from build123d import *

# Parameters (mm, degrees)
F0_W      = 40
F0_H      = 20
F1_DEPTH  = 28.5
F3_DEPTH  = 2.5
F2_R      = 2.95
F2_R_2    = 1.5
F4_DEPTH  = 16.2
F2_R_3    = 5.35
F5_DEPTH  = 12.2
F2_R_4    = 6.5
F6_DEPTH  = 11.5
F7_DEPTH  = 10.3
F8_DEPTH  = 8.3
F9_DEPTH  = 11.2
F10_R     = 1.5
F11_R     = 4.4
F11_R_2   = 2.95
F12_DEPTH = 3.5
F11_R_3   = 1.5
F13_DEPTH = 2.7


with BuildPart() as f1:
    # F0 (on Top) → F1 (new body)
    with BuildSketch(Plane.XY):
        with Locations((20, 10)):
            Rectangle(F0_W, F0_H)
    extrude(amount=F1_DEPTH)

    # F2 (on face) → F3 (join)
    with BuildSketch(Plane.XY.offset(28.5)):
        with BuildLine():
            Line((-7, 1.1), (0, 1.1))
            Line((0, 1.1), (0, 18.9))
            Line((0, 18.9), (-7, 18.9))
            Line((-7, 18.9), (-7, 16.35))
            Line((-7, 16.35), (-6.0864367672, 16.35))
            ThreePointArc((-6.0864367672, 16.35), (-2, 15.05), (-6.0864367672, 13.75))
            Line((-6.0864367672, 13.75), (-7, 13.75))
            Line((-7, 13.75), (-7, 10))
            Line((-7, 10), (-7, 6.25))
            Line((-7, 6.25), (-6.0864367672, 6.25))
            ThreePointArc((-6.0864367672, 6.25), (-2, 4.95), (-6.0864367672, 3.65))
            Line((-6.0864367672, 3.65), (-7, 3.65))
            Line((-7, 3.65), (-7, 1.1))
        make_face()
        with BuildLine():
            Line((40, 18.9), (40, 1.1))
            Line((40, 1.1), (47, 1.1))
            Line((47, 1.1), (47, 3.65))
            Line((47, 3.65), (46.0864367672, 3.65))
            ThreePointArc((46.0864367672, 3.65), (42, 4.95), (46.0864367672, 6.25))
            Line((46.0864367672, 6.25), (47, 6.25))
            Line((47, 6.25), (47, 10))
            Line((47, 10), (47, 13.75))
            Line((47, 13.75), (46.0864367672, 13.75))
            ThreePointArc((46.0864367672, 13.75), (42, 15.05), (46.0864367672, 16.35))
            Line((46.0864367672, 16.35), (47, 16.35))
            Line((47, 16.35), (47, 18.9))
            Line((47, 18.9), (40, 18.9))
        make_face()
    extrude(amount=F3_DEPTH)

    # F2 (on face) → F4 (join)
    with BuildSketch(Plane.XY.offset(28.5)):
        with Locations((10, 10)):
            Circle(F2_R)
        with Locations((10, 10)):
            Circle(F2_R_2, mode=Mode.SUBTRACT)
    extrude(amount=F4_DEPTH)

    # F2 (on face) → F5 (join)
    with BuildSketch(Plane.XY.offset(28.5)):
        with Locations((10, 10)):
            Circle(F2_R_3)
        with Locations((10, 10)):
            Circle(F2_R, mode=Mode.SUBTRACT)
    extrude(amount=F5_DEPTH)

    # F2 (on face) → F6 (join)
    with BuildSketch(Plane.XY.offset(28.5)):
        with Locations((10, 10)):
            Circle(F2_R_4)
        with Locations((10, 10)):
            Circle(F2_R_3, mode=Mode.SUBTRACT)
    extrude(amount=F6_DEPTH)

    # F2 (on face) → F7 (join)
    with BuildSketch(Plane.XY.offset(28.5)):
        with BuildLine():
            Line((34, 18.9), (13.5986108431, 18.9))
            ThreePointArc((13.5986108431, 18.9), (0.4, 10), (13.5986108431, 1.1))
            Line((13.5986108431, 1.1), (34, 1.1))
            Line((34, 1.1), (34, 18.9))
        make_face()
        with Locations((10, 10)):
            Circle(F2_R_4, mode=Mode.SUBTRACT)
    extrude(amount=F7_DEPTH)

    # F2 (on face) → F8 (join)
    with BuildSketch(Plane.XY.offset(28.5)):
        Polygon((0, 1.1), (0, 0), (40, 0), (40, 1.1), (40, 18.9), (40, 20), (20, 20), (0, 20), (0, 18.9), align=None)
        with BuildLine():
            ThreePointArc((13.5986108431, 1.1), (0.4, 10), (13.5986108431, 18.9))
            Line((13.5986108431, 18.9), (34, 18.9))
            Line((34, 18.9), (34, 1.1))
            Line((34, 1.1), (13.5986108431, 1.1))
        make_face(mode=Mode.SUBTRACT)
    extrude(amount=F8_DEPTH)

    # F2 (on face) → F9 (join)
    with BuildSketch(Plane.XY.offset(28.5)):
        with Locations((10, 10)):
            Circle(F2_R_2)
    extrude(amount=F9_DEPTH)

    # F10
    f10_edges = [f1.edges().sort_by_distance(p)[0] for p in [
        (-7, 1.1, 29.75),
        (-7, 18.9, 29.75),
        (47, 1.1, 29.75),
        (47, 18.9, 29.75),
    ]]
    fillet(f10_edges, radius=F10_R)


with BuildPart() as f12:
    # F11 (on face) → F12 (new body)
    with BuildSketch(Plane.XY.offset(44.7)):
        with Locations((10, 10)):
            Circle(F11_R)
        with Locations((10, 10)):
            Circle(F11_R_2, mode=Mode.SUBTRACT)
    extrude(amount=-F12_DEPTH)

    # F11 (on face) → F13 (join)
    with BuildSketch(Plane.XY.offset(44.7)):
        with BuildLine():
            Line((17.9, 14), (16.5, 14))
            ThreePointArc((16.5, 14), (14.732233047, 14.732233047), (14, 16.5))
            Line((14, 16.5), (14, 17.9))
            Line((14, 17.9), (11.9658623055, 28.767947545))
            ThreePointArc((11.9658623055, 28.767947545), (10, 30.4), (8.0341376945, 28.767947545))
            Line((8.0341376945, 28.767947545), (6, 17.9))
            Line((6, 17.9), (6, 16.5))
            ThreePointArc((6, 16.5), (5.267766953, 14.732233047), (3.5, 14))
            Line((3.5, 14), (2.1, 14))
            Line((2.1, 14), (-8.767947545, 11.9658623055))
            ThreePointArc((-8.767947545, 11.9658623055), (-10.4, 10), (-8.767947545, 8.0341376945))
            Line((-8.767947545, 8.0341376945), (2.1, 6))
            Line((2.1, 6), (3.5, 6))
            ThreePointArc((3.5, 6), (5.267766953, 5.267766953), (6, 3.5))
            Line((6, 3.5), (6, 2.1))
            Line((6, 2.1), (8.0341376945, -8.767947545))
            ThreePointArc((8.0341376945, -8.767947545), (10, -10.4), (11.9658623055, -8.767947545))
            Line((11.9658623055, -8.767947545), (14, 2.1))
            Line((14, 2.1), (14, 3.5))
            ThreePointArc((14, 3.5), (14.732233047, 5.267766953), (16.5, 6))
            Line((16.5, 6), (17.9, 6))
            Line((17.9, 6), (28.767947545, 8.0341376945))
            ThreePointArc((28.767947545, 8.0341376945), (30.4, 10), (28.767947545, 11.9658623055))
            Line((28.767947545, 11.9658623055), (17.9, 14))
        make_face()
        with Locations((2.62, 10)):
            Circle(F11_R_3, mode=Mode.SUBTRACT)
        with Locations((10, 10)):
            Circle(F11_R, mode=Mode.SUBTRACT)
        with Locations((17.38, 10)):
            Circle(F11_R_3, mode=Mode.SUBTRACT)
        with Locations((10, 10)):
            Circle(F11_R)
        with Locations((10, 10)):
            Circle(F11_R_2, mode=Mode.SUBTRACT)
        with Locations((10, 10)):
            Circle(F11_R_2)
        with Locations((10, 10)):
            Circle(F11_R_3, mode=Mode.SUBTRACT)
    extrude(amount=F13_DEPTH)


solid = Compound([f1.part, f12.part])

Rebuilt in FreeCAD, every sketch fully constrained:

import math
import FreeCAD as App
import Part
import Sketcher
from FreeCAD import Vector
Q = App.Units.Quantity


def edges_at(feature, points):
    """Names of the edges that pass closest to the given points."""
    edges = feature.Shape.Edges
    near = lambda p: min(range(len(edges)), key=lambda i: edges[i].distToShape(Part.Vertex(*p))[0])
    return sorted({f"Edge{near(p) + 1}" for p in points})


def add_polygon(sketch, points):
    """Adds a closed chain of lines whose ends are joined by coincident constraints."""
    first, n = sketch.GeometryCount, len(points)
    for a, b in zip(points, points[1:] + points[:1]):
        sketch.addGeometry(Part.LineSegment(App.Vector(*a, 0), App.Vector(*b, 0)), False)
    for i in range(n):
        sketch.addConstraint(Sketcher.Constraint("Coincident", first + i, 2, first + (i + 1) % n, 1))

doc = App.newDocument("Part")
body = doc.addObject("PartDesign::Body", "Body")
body.AllowCompound = True

# Sketch on XY plane
sketch1 = body.newObject("Sketcher::SketchObject", "Sketch")
sketch1.AttachmentSupport = (doc.getObject("XY_Plane"), [""])
sketch1.MapMode = "FlatFace"
add_polygon(sketch1, [(0, 20), (0, 0), (40, 0), (40, 20)])  # lines 0-3
sketch1.addConstraint(Sketcher.Constraint("Vertical", 0))
sketch1.addConstraint(Sketcher.Constraint("Horizontal", 1))
sketch1.addConstraint(Sketcher.Constraint("Vertical", 2))
sketch1.addConstraint(Sketcher.Constraint("Horizontal", 3))
sketch1.addConstraint(Sketcher.Constraint("Coincident", 0, 2, -1, 1))
sketch1.addConstraint(Sketcher.Constraint("DistanceX", 1, 1, 1, 2, Q("40 mm")))
sketch1.addConstraint(Sketcher.Constraint("DistanceY", 0, 2, 0, 1, Q("20 mm")))
pad1 = body.newObject("PartDesign::Pad", "Pad")
pad1.Profile = sketch1
pad1.Length = 28.5

# Sketch on XY plane
sketch2 = body.newObject("Sketcher::SketchObject", "Sketch001")
sketch2.AttachmentSupport = (doc.getObject("XY_Plane"), [""])
sketch2.MapMode = "FlatFace"
sketch2.AttachmentOffset = App.Placement(Vector(0, 0, 28.5), App.Rotation())
sketch2.addGeometry(Part.LineSegment(Vector(-7, 1.1, 0), Vector(0, 1.1, 0)), False)
sketch2.addGeometry(Part.LineSegment(Vector(0, 1.1, 0), Vector(0, 18.9, 0)), False)
sketch2.addGeometry(Part.LineSegment(Vector(0, 18.9, 0), Vector(-7, 18.9, 0)), False)
sketch2.addGeometry(Part.LineSegment(Vector(-7, 18.9, 0), Vector(-7, 16.35, 0)), False)
sketch2.addGeometry(Part.LineSegment(Vector(-7, 16.35, 0), Vector(-6.086437, 16.35, 0)), False)
sketch2.addGeometry(Part.ArcOfCircle(Part.Circle(Vector(-4.25, 15.05, 0), Vector(0, 0, 1), 2.25), math.radians(-144.705605), math.radians(144.705605)), False)
sketch2.addGeometry(Part.LineSegment(Vector(-6.086437, 13.75, 0), Vector(-7, 13.75, 0)), False)
sketch2.addGeometry(Part.LineSegment(Vector(-7, 13.75, 0), Vector(-7, 6.25, 0)), False)
sketch2.addGeometry(Part.LineSegment(Vector(-7, 6.25, 0), Vector(-6.086437, 6.25, 0)), False)
sketch2.addGeometry(Part.ArcOfCircle(Part.Circle(Vector(-4.25, 4.95, 0), Vector(0, 0, 1), 2.25), math.radians(-144.705605), math.radians(144.705605)), False)
sketch2.addGeometry(Part.LineSegment(Vector(-6.086437, 3.65, 0), Vector(-7, 3.65, 0)), False)
sketch2.addGeometry(Part.LineSegment(Vector(-7, 3.65, 0), Vector(-7, 1.1, 0)), False)
sketch2.addGeometry(Part.LineSegment(Vector(40, 18.9, 0), Vector(40, 1.1, 0)), False)
sketch2.addGeometry(Part.LineSegment(Vector(40, 1.1, 0), Vector(47, 1.1, 0)), False)
sketch2.addGeometry(Part.LineSegment(Vector(47, 1.1, 0), Vector(47, 3.65, 0)), False)
sketch2.addGeometry(Part.LineSegment(Vector(47, 3.65, 0), Vector(46.086437, 3.65, 0)), False)
sketch2.addGeometry(Part.ArcOfCircle(Part.Circle(Vector(44.25, 4.95, 0), Vector(0, 0, 1), 2.25), math.radians(35.294395), math.radians(324.705605)), False)
sketch2.addGeometry(Part.LineSegment(Vector(46.086437, 6.25, 0), Vector(47, 6.25, 0)), False)
sketch2.addGeometry(Part.LineSegment(Vector(47, 6.25, 0), Vector(47, 13.75, 0)), False)
sketch2.addGeometry(Part.LineSegment(Vector(47, 13.75, 0), Vector(46.086437, 13.75, 0)), False)
sketch2.addGeometry(Part.ArcOfCircle(Part.Circle(Vector(44.25, 15.05, 0), Vector(0, 0, 1), 2.25), math.radians(35.294395), math.radians(324.705605)), False)
sketch2.addGeometry(Part.LineSegment(Vector(46.086437, 16.35, 0), Vector(47, 16.35, 0)), False)
sketch2.addGeometry(Part.LineSegment(Vector(47, 16.35, 0), Vector(47, 18.9, 0)), False)
sketch2.addGeometry(Part.LineSegment(Vector(47, 18.9, 0), Vector(40, 18.9, 0)), False)
sketch2.addConstraint(Sketcher.Constraint("Coincident", 0, 2, 1, 1))
sketch2.addConstraint(Sketcher.Constraint("Coincident", 1, 2, 2, 1))
sketch2.addConstraint(Sketcher.Constraint("Coincident", 2, 2, 3, 1))
sketch2.addConstraint(Sketcher.Constraint("Coincident", 3, 2, 4, 1))
sketch2.addConstraint(Sketcher.Constraint("Coincident", 4, 2, 5, 2))
sketch2.addConstraint(Sketcher.Constraint("Coincident", 5, 1, 6, 1))
sketch2.addConstraint(Sketcher.Constraint("Coincident", 6, 2, 7, 1))
sketch2.addConstraint(Sketcher.Constraint("Coincident", 7, 2, 8, 1))
sketch2.addConstraint(Sketcher.Constraint("Coincident", 8, 2, 9, 2))
sketch2.addConstraint(Sketcher.Constraint("Coincident", 9, 1, 10, 1))
sketch2.addConstraint(Sketcher.Constraint("Coincident", 10, 2, 11, 1))
sketch2.addConstraint(Sketcher.Constraint("Coincident", 11, 2, 0, 1))
sketch2.addConstraint(Sketcher.Constraint("Coincident", 12, 2, 13, 1))
sketch2.addConstraint(Sketcher.Constraint("Coincident", 13, 2, 14, 1))
sketch2.addConstraint(Sketcher.Constraint("Coincident", 14, 2, 15, 1))
sketch2.addConstraint(Sketcher.Constraint("Coincident", 15, 2, 16, 2))
sketch2.addConstraint(Sketcher.Constraint("Coincident", 16, 1, 17, 1))
sketch2.addConstraint(Sketcher.Constraint("Coincident", 17, 2, 18, 1))
sketch2.addConstraint(Sketcher.Constraint("Coincident", 18, 2, 19, 1))
sketch2.addConstraint(Sketcher.Constraint("Coincident", 19, 2, 20, 2))
sketch2.addConstraint(Sketcher.Constraint("Coincident", 20, 1, 21, 1))
sketch2.addConstraint(Sketcher.Constraint("Coincident", 21, 2, 22, 1))
sketch2.addConstraint(Sketcher.Constraint("Coincident", 22, 2, 23, 1))
sketch2.addConstraint(Sketcher.Constraint("Coincident", 23, 2, 12, 1))
sketch2.addConstraint(Sketcher.Constraint("Horizontal", 0))
sketch2.addConstraint(Sketcher.Constraint("Vertical", 1))
sketch2.addConstraint(Sketcher.Constraint("Horizontal", 2))
sketch2.addConstraint(Sketcher.Constraint("Vertical", 3))
sketch2.addConstraint(Sketcher.Constraint("Horizontal", 4))
sketch2.addConstraint(Sketcher.Constraint("Horizontal", 6))
sketch2.addConstraint(Sketcher.Constraint("Vertical", 7))
sketch2.addConstraint(Sketcher.Constraint("Horizontal", 8))
sketch2.addConstraint(Sketcher.Constraint("Horizontal", 10))
sketch2.addConstraint(Sketcher.Constraint("Vertical", 11))
sketch2.addConstraint(Sketcher.Constraint("Vertical", 12))
sketch2.addConstraint(Sketcher.Constraint("Horizontal", 13))
sketch2.addConstraint(Sketcher.Constraint("Vertical", 14))
sketch2.addConstraint(Sketcher.Constraint("Horizontal", 15))
sketch2.addConstraint(Sketcher.Constraint("Horizontal", 17))
sketch2.addConstraint(Sketcher.Constraint("Vertical", 18))
sketch2.addConstraint(Sketcher.Constraint("Horizontal", 19))
sketch2.addConstraint(Sketcher.Constraint("Horizontal", 21))
sketch2.addConstraint(Sketcher.Constraint("Vertical", 22))
sketch2.addConstraint(Sketcher.Constraint("Horizontal", 23))
sketch2.addConstraint(Sketcher.Constraint("Equal", 5, 9))
sketch2.addConstraint(Sketcher.Constraint("Equal", 9, 16))
sketch2.addConstraint(Sketcher.Constraint("Equal", 16, 20))
sketch2.addConstraint(Sketcher.Constraint("PointOnObject", 0, 2, -2))
sketch2.addConstraint(Sketcher.Constraint("Horizontal", 9, 3, 16, 3))
sketch2.addConstraint(Sketcher.Constraint("Horizontal", 5, 3, 20, 3))
sketch2.addConstraint(Sketcher.Constraint("Horizontal", 11, 2, 12, 2))
sketch2.addConstraint(Sketcher.Constraint("Horizontal", 10, 2, 14, 2))
sketch2.addConstraint(Sketcher.Constraint("Horizontal", 8, 2, 16, 1))
sketch2.addConstraint(Sketcher.Constraint("Horizontal", 6, 2, 18, 2))
sketch2.addConstraint(Sketcher.Constraint("Horizontal", 4, 2, 20, 1))
sketch2.addConstraint(Sketcher.Constraint("Horizontal", 2, 2, 22, 2))
sketch2.addConstraint(Sketcher.Constraint("Vertical", 5, 3, 9, 3))
sketch2.addConstraint(Sketcher.Constraint("Vertical", 16, 3, 20, 3))
sketch2.addConstraint(Sketcher.Constraint("Vertical", 4, 2, 5, 1))
sketch2.addConstraint(Sketcher.Constraint("Vertical", 3, 2, 6, 2))
sketch2.addConstraint(Sketcher.Constraint("Vertical", 5, 1, 8, 2))
sketch2.addConstraint(Sketcher.Constraint("Vertical", 8, 2, 9, 1))
sketch2.addConstraint(Sketcher.Constraint("Vertical", 7, 2, 10, 2))
sketch2.addConstraint(Sketcher.Constraint("Vertical", 14, 2, 17, 2))
sketch2.addConstraint(Sketcher.Constraint("Vertical", 18, 2, 21, 2))
sketch2.addConstraint(Sketcher.Constraint("Equal", 2, 13))
sketch2.addConstraint(Sketcher.Constraint("Equal", 10, 15))
sketch2.addConstraint(Sketcher.Constraint("Equal", 3, 11))
sketch2.addConstraint(Sketcher.Constraint("DistanceX", 0, 1, 0, 2, Q("7 mm")))
sketch2.addConstraint(Sketcher.Constraint("Radius", 5, Q("2.25 mm")))
sketch2.addConstraint(Sketcher.Constraint("DistanceY", 1, 1, 1, 2, Q("17.8 mm")))
sketch2.addConstraint(Sketcher.Constraint("DistanceY", 7, 2, 7, 1, Q("7.5 mm")))
sketch2.addConstraint(Sketcher.Constraint("DistanceX", -1, 1, 12, 2, Q("40 mm")))
sketch2.addConstraint(Sketcher.Constraint("DistanceY", 3, 2, 3, 1, Q("2.55 mm")))
sketch2.addConstraint(Sketcher.Constraint("DistanceY", -1, 1, 0, 2, Q("1.1 mm")))
sketch2.addConstraint(Sketcher.Constraint("DistanceX", 9, 3, 16, 3, Q("48.5 mm")))
pad2 = body.newObject("PartDesign::Pad", "Pad001")
pad2.Profile = sketch2
pad2.Length = 2.5

# Sketch on XY plane
sketch3 = body.newObject("Sketcher::SketchObject", "Sketch002")
sketch3.AttachmentSupport = (doc.getObject("XY_Plane"), [""])
sketch3.MapMode = "FlatFace"
sketch3.AttachmentOffset = App.Placement(Vector(0, 0, 28.5), App.Rotation())
sketch3.addGeometry(Part.Circle(Vector(10, 10, 0), Vector(0, 0, 1), 2.95), False)
sketch3.addGeometry(Part.Circle(Vector(10, 10, 0), Vector(0, 0, 1), 1.5), False)
sketch3.addConstraint(Sketcher.Constraint("Coincident", 1, 3, 0, 3))
sketch3.addConstraint(Sketcher.Constraint("Diameter", 1, Q("3 mm")))
sketch3.addConstraint(Sketcher.Constraint("Diameter", 0, Q("5.9 mm")))
sketch3.addConstraint(Sketcher.Constraint("DistanceX", -1, 1, 0, 3, Q("10 mm")))
sketch3.addConstraint(Sketcher.Constraint("DistanceY", -1, 1, 0, 3, Q("10 mm")))
pad3 = body.newObject("PartDesign::Pad", "Pad002")
pad3.Profile = sketch3
pad3.Length = 16.2

# Sketch on XY plane
sketch4 = body.newObject("Sketcher::SketchObject", "Sketch003")
sketch4.AttachmentSupport = (doc.getObject("XY_Plane"), [""])
sketch4.MapMode = "FlatFace"
sketch4.AttachmentOffset = App.Placement(Vector(0, 0, 28.5), App.Rotation())
sketch4.addGeometry(Part.Circle(Vector(10, 10, 0), Vector(0, 0, 1), 5.35), False)
sketch4.addGeometry(Part.Circle(Vector(10, 10, 0), Vector(0, 0, 1), 2.95), False)
sketch4.addConstraint(Sketcher.Constraint("Coincident", 1, 3, 0, 3))
sketch4.addConstraint(Sketcher.Constraint("Diameter", 0, Q("10.7 mm")))
sketch4.addConstraint(Sketcher.Constraint("Diameter", 1, Q("5.9 mm")))
sketch4.addConstraint(Sketcher.Constraint("DistanceX", -1, 1, 0, 3, Q("10 mm")))
sketch4.addConstraint(Sketcher.Constraint("DistanceY", -1, 1, 0, 3, Q("10 mm")))
pad4 = body.newObject("PartDesign::Pad", "Pad003")
pad4.Profile = sketch4
pad4.Length = 12.2

# Sketch on XY plane
sketch5 = body.newObject("Sketcher::SketchObject", "Sketch004")
sketch5.AttachmentSupport = (doc.getObject("XY_Plane"), [""])
sketch5.MapMode = "FlatFace"
sketch5.AttachmentOffset = App.Placement(Vector(0, 0, 28.5), App.Rotation())
sketch5.addGeometry(Part.Circle(Vector(10, 10, 0), Vector(0, 0, 1), 6.5), False)
sketch5.addGeometry(Part.Circle(Vector(10, 10, 0), Vector(0, 0, 1), 5.35), False)
sketch5.addConstraint(Sketcher.Constraint("Coincident", 1, 3, 0, 3))
sketch5.addConstraint(Sketcher.Constraint("Diameter", 0, Q("13 mm")))
sketch5.addConstraint(Sketcher.Constraint("Diameter", 1, Q("10.7 mm")))
sketch5.addConstraint(Sketcher.Constraint("DistanceX", -1, 1, 0, 3, Q("10 mm")))
sketch5.addConstraint(Sketcher.Constraint("DistanceY", -1, 1, 0, 3, Q("10 mm")))
pad5 = body.newObject("PartDesign::Pad", "Pad004")
pad5.Profile = sketch5
pad5.Length = 11.5

# Sketch on XY plane
sketch6 = body.newObject("Sketcher::SketchObject", "Sketch005")
sketch6.AttachmentSupport = (doc.getObject("XY_Plane"), [""])
sketch6.MapMode = "FlatFace"
sketch6.AttachmentOffset = App.Placement(Vector(0, 0, 28.5), App.Rotation())
sketch6.addGeometry(Part.LineSegment(Vector(34, 18.9, 0), Vector(13.598611, 18.9, 0)), False)
sketch6.addGeometry(Part.ArcOfCircle(Part.Circle(Vector(10, 10, 0), Vector(0, 0, 1), 9.6), math.radians(67.98463), math.radians(292.01537)), False)
sketch6.addGeometry(Part.LineSegment(Vector(13.598611, 1.1, 0), Vector(34, 1.1, 0)), False)
sketch6.addGeometry(Part.LineSegment(Vector(34, 1.1, 0), Vector(34, 18.9, 0)), False)
sketch6.addGeometry(Part.Circle(Vector(10, 10, 0), Vector(0, 0, 1), 6.5), False)
sketch6.addConstraint(Sketcher.Constraint("Coincident", 0, 2, 1, 1))
sketch6.addConstraint(Sketcher.Constraint("Coincident", 1, 2, 2, 1))
sketch6.addConstraint(Sketcher.Constraint("Coincident", 2, 2, 3, 1))
sketch6.addConstraint(Sketcher.Constraint("Coincident", 3, 2, 0, 1))
sketch6.addConstraint(Sketcher.Constraint("Horizontal", 0))
sketch6.addConstraint(Sketcher.Constraint("Horizontal", 2))
sketch6.addConstraint(Sketcher.Constraint("Vertical", 3))
sketch6.addConstraint(Sketcher.Constraint("Coincident", 4, 3, 1, 3))
sketch6.addConstraint(Sketcher.Constraint("Vertical", 0, 2, 1, 2))
sketch6.addConstraint(Sketcher.Constraint("Diameter", 4, Q("13 mm")))
sketch6.addConstraint(Sketcher.Constraint("Radius", 1, Q("9.6 mm")))
sketch6.addConstraint(Sketcher.Constraint("DistanceY", 3, 1, 3, 2, Q("17.8 mm")))
sketch6.addConstraint(Sketcher.Constraint("DistanceX", -1, 1, 1, 3, Q("10 mm")))
sketch6.addConstraint(Sketcher.Constraint("DistanceY", -1, 1, 1, 3, Q("10 mm")))
sketch6.addConstraint(Sketcher.Constraint("DistanceX", -1, 1, 2, 2, Q("34 mm")))
pad6 = body.newObject("PartDesign::Pad", "Pad005")
pad6.Profile = sketch6
pad6.Length = 10.3

# Sketch on XY plane
sketch7 = body.newObject("Sketcher::SketchObject", "Sketch006")
sketch7.AttachmentSupport = (doc.getObject("XY_Plane"), [""])
sketch7.MapMode = "FlatFace"
sketch7.AttachmentOffset = App.Placement(Vector(0, 0, 28.5), App.Rotation())
add_polygon(sketch7, [(0, 0), (40, 0), (40, 20), (0, 20)])  # lines 0-3
sketch7.addGeometry(Part.LineSegment(Vector(34, 1.1, 0), Vector(13.598611, 1.1, 0)), False)  # 4
sketch7.addGeometry(Part.ArcOfCircle(Part.Circle(Vector(10, 10, 0), Vector(0, 0, 1), 9.6), math.radians(67.98463), math.radians(292.01537)), False)  # 5
sketch7.addGeometry(Part.LineSegment(Vector(13.598611, 18.9, 0), Vector(34, 18.9, 0)), False)  # 6
sketch7.addGeometry(Part.LineSegment(Vector(34, 18.9, 0), Vector(34, 1.1, 0)), False)  # 7
sketch7.addConstraint(Sketcher.Constraint("Coincident", 4, 2, 5, 2))
sketch7.addConstraint(Sketcher.Constraint("Coincident", 5, 1, 6, 1))
sketch7.addConstraint(Sketcher.Constraint("Coincident", 6, 2, 7, 1))
sketch7.addConstraint(Sketcher.Constraint("Coincident", 7, 2, 4, 1))
sketch7.addConstraint(Sketcher.Constraint("Horizontal", 0))
sketch7.addConstraint(Sketcher.Constraint("Vertical", 1))
sketch7.addConstraint(Sketcher.Constraint("Horizontal", 2))
sketch7.addConstraint(Sketcher.Constraint("Vertical", 3))
sketch7.addConstraint(Sketcher.Constraint("Horizontal", 4))
sketch7.addConstraint(Sketcher.Constraint("Horizontal", 6))
sketch7.addConstraint(Sketcher.Constraint("Vertical", 7))
sketch7.addConstraint(Sketcher.Constraint("Coincident", 3, 2, -1, 1))
sketch7.addConstraint(Sketcher.Constraint("Vertical", 4, 2, 5, 1))
sketch7.addConstraint(Sketcher.Constraint("Radius", 5, Q("9.6 mm")))
sketch7.addConstraint(Sketcher.Constraint("DistanceX", 0, 1, 0, 2, Q("40 mm")))
sketch7.addConstraint(Sketcher.Constraint("DistanceY", 1, 1, 1, 2, Q("20 mm")))
sketch7.addConstraint(Sketcher.Constraint("DistanceY", 7, 2, 7, 1, Q("17.8 mm")))
sketch7.addConstraint(Sketcher.Constraint("DistanceX", -1, 1, 5, 3, Q("10 mm")))
sketch7.addConstraint(Sketcher.Constraint("DistanceY", -1, 1, 5, 3, Q("10 mm")))
sketch7.addConstraint(Sketcher.Constraint("DistanceX", -1, 1, 6, 2, Q("34 mm")))
pad7 = body.newObject("PartDesign::Pad", "Pad006")
pad7.Profile = sketch7
pad7.Length = 8.3

# Sketch on XY plane
sketch8 = body.newObject("Sketcher::SketchObject", "Sketch007")
sketch8.AttachmentSupport = (doc.getObject("XY_Plane"), [""])
sketch8.MapMode = "FlatFace"
sketch8.AttachmentOffset = App.Placement(Vector(0, 0, 28.5), App.Rotation())
sketch8.addGeometry(Part.Circle(Vector(10, 10, 0), Vector(0, 0, 1), 1.5), False)
sketch8.addConstraint(Sketcher.Constraint("Diameter", 0, Q("3 mm")))
sketch8.addConstraint(Sketcher.Constraint("DistanceX", -1, 1, 0, 3, Q("10 mm")))
sketch8.addConstraint(Sketcher.Constraint("DistanceY", -1, 1, 0, 3, Q("10 mm")))
pad8 = body.newObject("PartDesign::Pad", "Pad007")
pad8.Profile = sketch8
pad8.Length = 11.2
doc.recompute()

fillet = body.newObject("PartDesign::Fillet", "Fillet")
fillet.Base = (pad8, edges_at(pad8, [
    (-7, 1.1, 29.75),
    (-7, 18.9, 29.75),
    (47, 1.1, 29.75),
    (47, 18.9, 29.75),
]))
fillet.Radius = 1.5
body2 = doc.addObject("PartDesign::Body", "Body001")

# Sketch on XY plane
sketch9 = body2.newObject("Sketcher::SketchObject", "Sketch008")
sketch9.AttachmentSupport = (doc.getObject("XY_Plane001"), [""])
sketch9.MapMode = "FlatFace"
sketch9.AttachmentOffset = App.Placement(Vector(0, 0, 44.7), App.Rotation())
sketch9.addGeometry(Part.Circle(Vector(10, 10, 0), Vector(0, 0, 1), 4.4), False)
sketch9.addGeometry(Part.Circle(Vector(10, 10, 0), Vector(0, 0, 1), 2.95), False)
sketch9.addConstraint(Sketcher.Constraint("Coincident", 1, 3, 0, 3))
sketch9.addConstraint(Sketcher.Constraint("Diameter", 0, Q("8.8 mm")))
sketch9.addConstraint(Sketcher.Constraint("Diameter", 1, Q("5.9 mm")))
sketch9.addConstraint(Sketcher.Constraint("DistanceX", -1, 1, 0, 3, Q("10 mm")))
sketch9.addConstraint(Sketcher.Constraint("DistanceY", -1, 1, 0, 3, Q("10 mm")))
pad9 = body2.newObject("PartDesign::Pad", "Pad008")
pad9.Profile = sketch9
pad9.Length = 3.5
pad9.Reversed = True

# Sketch on XY plane
sketch10 = body2.newObject("Sketcher::SketchObject", "Sketch009")
sketch10.AttachmentSupport = (doc.getObject("XY_Plane001"), [""])
sketch10.MapMode = "FlatFace"
sketch10.AttachmentOffset = App.Placement(Vector(0, 0, 44.7), App.Rotation())
sketch10.addGeometry(Part.LineSegment(Vector(17.9, 14, 0), Vector(16.5, 14, 0)), False)
sketch10.addGeometry(Part.ArcOfCircle(Part.Circle(Vector(16.5, 16.5, 0), Vector(0, 0, 1), 2.5), math.radians(180), math.radians(270)), False)
sketch10.addGeometry(Part.LineSegment(Vector(14, 16.5, 0), Vector(14, 17.9, 0)), False)
sketch10.addGeometry(Part.LineSegment(Vector(14, 17.9, 0), Vector(11.965862, 28.767948, 0)), False)
sketch10.addGeometry(Part.ArcOfCircle(Part.Circle(Vector(10, 28.4, 0), Vector(0, 0, 1), 2), math.radians(10.601307), math.radians(169.398693)), False)
sketch10.addGeometry(Part.LineSegment(Vector(8.034138, 28.767948, 0), Vector(6, 17.9, 0)), False)
sketch10.addGeometry(Part.LineSegment(Vector(6, 17.9, 0), Vector(6, 16.5, 0)), False)
sketch10.addGeometry(Part.ArcOfCircle(Part.Circle(Vector(3.5, 16.5, 0), Vector(0, 0, 1), 2.5), math.radians(-90), math.radians(0)), False)
sketch10.addGeometry(Part.LineSegment(Vector(3.5, 14, 0), Vector(2.1, 14, 0)), False)
sketch10.addGeometry(Part.LineSegment(Vector(2.1, 14, 0), Vector(-8.767948, 11.965862, 0)), False)
sketch10.addGeometry(Part.ArcOfCircle(Part.Circle(Vector(-8.4, 10, 0), Vector(0, 0, 1), 2), math.radians(100.601307), math.radians(259.398693)), False)
sketch10.addGeometry(Part.LineSegment(Vector(-8.767948, 8.034138, 0), Vector(2.1, 6, 0)), False)
sketch10.addGeometry(Part.LineSegment(Vector(2.1, 6, 0), Vector(3.5, 6, 0)), False)
sketch10.addGeometry(Part.ArcOfCircle(Part.Circle(Vector(3.5, 3.5, 0), Vector(0, 0, 1), 2.5), math.radians(0), math.radians(90)), False)
sketch10.addGeometry(Part.LineSegment(Vector(6, 3.5, 0), Vector(6, 2.1, 0)), False)
sketch10.addGeometry(Part.LineSegment(Vector(6, 2.1, 0), Vector(8.034138, -8.767948, 0)), False)
sketch10.addGeometry(Part.ArcOfCircle(Part.Circle(Vector(10, -8.4, 0), Vector(0, 0, 1), 2), math.radians(-169.398693), math.radians(-10.601307)), False)
sketch10.addGeometry(Part.LineSegment(Vector(11.965862, -8.767948, 0), Vector(14, 2.1, 0)), False)
sketch10.addGeometry(Part.LineSegment(Vector(14, 2.1, 0), Vector(14, 3.5, 0)), False)
sketch10.addGeometry(Part.ArcOfCircle(Part.Circle(Vector(16.5, 3.5, 0), Vector(0, 0, 1), 2.5), math.radians(90), math.radians(180)), False)
sketch10.addGeometry(Part.LineSegment(Vector(16.5, 6, 0), Vector(17.9, 6, 0)), False)
sketch10.addGeometry(Part.LineSegment(Vector(17.9, 6, 0), Vector(28.767948, 8.034138, 0)), False)
sketch10.addGeometry(Part.ArcOfCircle(Part.Circle(Vector(28.4, 10, 0), Vector(0, 0, 1), 2), math.radians(-79.398693), math.radians(79.398693)), False)
sketch10.addGeometry(Part.LineSegment(Vector(28.767948, 11.965862, 0), Vector(17.9, 14, 0)), False)
sketch10.addGeometry(Part.Circle(Vector(2.62, 10, 0), Vector(0, 0, 1), 1.5), False)
sketch10.addGeometry(Part.Circle(Vector(10, 10, 0), Vector(0, 0, 1), 1.5), False)
sketch10.addGeometry(Part.Circle(Vector(17.38, 10, 0), Vector(0, 0, 1), 1.5), False)
sketch10.addConstraint(Sketcher.Constraint("Tangent", 0, 2, 1, 2))
sketch10.addConstraint(Sketcher.Constraint("Tangent", 1, 1, 2, 1))
sketch10.addConstraint(Sketcher.Constraint("Coincident", 2, 2, 3, 1))
sketch10.addConstraint(Sketcher.Constraint("Tangent", 3, 2, 4, 1))
sketch10.addConstraint(Sketcher.Constraint("Tangent", 4, 2, 5, 1))
sketch10.addConstraint(Sketcher.Constraint("Coincident", 5, 2, 6, 1))
sketch10.addConstraint(Sketcher.Constraint("Tangent", 6, 2, 7, 2))
sketch10.addConstraint(Sketcher.Constraint("Tangent", 7, 1, 8, 1))
sketch10.addConstraint(Sketcher.Constraint("Coincident", 8, 2, 9, 1))
sketch10.addConstraint(Sketcher.Constraint("Tangent", 9, 2, 10, 1))
sketch10.addConstraint(Sketcher.Constraint("Tangent", 10, 2, 11, 1))
sketch10.addConstraint(Sketcher.Constraint("Coincident", 11, 2, 12, 1))
sketch10.addConstraint(Sketcher.Constraint("Tangent", 12, 2, 13, 2))
sketch10.addConstraint(Sketcher.Constraint("Tangent", 13, 1, 14, 1))
sketch10.addConstraint(Sketcher.Constraint("Coincident", 14, 2, 15, 1))
sketch10.addConstraint(Sketcher.Constraint("Tangent", 15, 2, 16, 1))
sketch10.addConstraint(Sketcher.Constraint("Tangent", 16, 2, 17, 1))
sketch10.addConstraint(Sketcher.Constraint("Coincident", 17, 2, 18, 1))
sketch10.addConstraint(Sketcher.Constraint("Tangent", 18, 2, 19, 2))
sketch10.addConstraint(Sketcher.Constraint("Tangent", 19, 1, 20, 1))
sketch10.addConstraint(Sketcher.Constraint("Coincident", 20, 2, 21, 1))
sketch10.addConstraint(Sketcher.Constraint("Tangent", 21, 2, 22, 1))
sketch10.addConstraint(Sketcher.Constraint("Tangent", 22, 2, 23, 1))
sketch10.addConstraint(Sketcher.Constraint("Coincident", 23, 2, 0, 1))
sketch10.addConstraint(Sketcher.Constraint("Horizontal", 0))
sketch10.addConstraint(Sketcher.Constraint("Vertical", 2))
sketch10.addConstraint(Sketcher.Constraint("Vertical", 6))
sketch10.addConstraint(Sketcher.Constraint("Horizontal", 8))
sketch10.addConstraint(Sketcher.Constraint("Horizontal", 12))
sketch10.addConstraint(Sketcher.Constraint("Vertical", 14))
sketch10.addConstraint(Sketcher.Constraint("Vertical", 18))
sketch10.addConstraint(Sketcher.Constraint("Horizontal", 20))
sketch10.addConstraint(Sketcher.Constraint("Equal", 1, 7))
sketch10.addConstraint(Sketcher.Constraint("Equal", 4, 10))
sketch10.addConstraint(Sketcher.Constraint("Equal", 7, 13))
sketch10.addConstraint(Sketcher.Constraint("Equal", 10, 16))
sketch10.addConstraint(Sketcher.Constraint("Equal", 13, 19))
sketch10.addConstraint(Sketcher.Constraint("Equal", 16, 22))
sketch10.addConstraint(Sketcher.Constraint("Equal", 24, 25))
sketch10.addConstraint(Sketcher.Constraint("Equal", 25, 26))
sketch10.addConstraint(Sketcher.Constraint("Perpendicular", 3, 9))
sketch10.addConstraint(Sketcher.Constraint("Perpendicular", 5, 11))
sketch10.addConstraint(Sketcher.Constraint("Perpendicular", 9, 15))
sketch10.addConstraint(Sketcher.Constraint("Perpendicular", 11, 17))
sketch10.addConstraint(Sketcher.Constraint("Perpendicular", 15, 21))
sketch10.addConstraint(Sketcher.Constraint("Perpendicular", 17, 23))
sketch10.addConstraint(Sketcher.Constraint("Horizontal", 1, 3, 7, 3))
sketch10.addConstraint(Sketcher.Constraint("Horizontal", 13, 3, 19, 3))
sketch10.addConstraint(Sketcher.Constraint("Horizontal", 10, 3, 22, 3))
sketch10.addConstraint(Sketcher.Constraint("Horizontal", 22, 3, 24, 3))
sketch10.addConstraint(Sketcher.Constraint("Horizontal", 24, 3, 25, 3))
sketch10.addConstraint(Sketcher.Constraint("Horizontal", 25, 3, 26, 3))
sketch10.addConstraint(Sketcher.Constraint("Horizontal", 3, 2, 4, 2))
sketch10.addConstraint(Sketcher.Constraint("Horizontal", 2, 2, 5, 2))
sketch10.addConstraint(Sketcher.Constraint("Horizontal", 14, 2, 17, 2))
sketch10.addConstraint(Sketcher.Constraint("Vertical", 7, 3, 13, 3))
sketch10.addConstraint(Sketcher.Constraint("Vertical", 4, 3, 16, 3))
sketch10.addConstraint(Sketcher.Constraint("Vertical", 16, 3, 25, 3))
sketch10.addConstraint(Sketcher.Constraint("Vertical", 8, 2, 11, 2))
sketch10.addConstraint(Sketcher.Constraint("Equal", 0, 8))
sketch10.addConstraint(Sketcher.Constraint("Equal", 20, 2))
sketch10.addConstraint(Sketcher.Constraint("Equal", 6, 14))
sketch10.addConstraint(Sketcher.Constraint("Equal", 5, 9))
sketch10.addConstraint(Sketcher.Constraint("Diameter", 24, Q("3 mm")))
sketch10.addConstraint(Sketcher.Constraint("Radius", 4, Q("2 mm")))
sketch10.addConstraint(Sketcher.Constraint("Radius", 1, Q("2.5 mm")))
sketch10.addConstraint(Sketcher.Constraint("DistanceX", 0, 2, 0, 1, Q("1.4 mm")))
sketch10.addConstraint(Sketcher.Constraint("DistanceX", -1, 1, 4, 3, Q("10 mm")))
sketch10.addConstraint(Sketcher.Constraint("DistanceY", -1, 1, 10, 3, Q("10 mm")))
sketch10.addConstraint(Sketcher.Constraint("DistanceY", -1, 1, 0, 2, Q("14 mm")))
sketch10.addConstraint(Sketcher.Constraint("DistanceY", -1, 1, 4, 3, Q("28.4 mm")))
sketch10.addConstraint(Sketcher.Constraint("DistanceX", -1, 1, 24, 3, Q("2.62 mm")))
sketch10.addConstraint(Sketcher.Constraint("DistanceX", -1, 1, 26, 3, Q("17.38 mm")))
pad10 = body2.newObject("PartDesign::Pad", "Pad009")
pad10.Profile = sketch10
pad10.Length = 2.7

doc.recompute()
